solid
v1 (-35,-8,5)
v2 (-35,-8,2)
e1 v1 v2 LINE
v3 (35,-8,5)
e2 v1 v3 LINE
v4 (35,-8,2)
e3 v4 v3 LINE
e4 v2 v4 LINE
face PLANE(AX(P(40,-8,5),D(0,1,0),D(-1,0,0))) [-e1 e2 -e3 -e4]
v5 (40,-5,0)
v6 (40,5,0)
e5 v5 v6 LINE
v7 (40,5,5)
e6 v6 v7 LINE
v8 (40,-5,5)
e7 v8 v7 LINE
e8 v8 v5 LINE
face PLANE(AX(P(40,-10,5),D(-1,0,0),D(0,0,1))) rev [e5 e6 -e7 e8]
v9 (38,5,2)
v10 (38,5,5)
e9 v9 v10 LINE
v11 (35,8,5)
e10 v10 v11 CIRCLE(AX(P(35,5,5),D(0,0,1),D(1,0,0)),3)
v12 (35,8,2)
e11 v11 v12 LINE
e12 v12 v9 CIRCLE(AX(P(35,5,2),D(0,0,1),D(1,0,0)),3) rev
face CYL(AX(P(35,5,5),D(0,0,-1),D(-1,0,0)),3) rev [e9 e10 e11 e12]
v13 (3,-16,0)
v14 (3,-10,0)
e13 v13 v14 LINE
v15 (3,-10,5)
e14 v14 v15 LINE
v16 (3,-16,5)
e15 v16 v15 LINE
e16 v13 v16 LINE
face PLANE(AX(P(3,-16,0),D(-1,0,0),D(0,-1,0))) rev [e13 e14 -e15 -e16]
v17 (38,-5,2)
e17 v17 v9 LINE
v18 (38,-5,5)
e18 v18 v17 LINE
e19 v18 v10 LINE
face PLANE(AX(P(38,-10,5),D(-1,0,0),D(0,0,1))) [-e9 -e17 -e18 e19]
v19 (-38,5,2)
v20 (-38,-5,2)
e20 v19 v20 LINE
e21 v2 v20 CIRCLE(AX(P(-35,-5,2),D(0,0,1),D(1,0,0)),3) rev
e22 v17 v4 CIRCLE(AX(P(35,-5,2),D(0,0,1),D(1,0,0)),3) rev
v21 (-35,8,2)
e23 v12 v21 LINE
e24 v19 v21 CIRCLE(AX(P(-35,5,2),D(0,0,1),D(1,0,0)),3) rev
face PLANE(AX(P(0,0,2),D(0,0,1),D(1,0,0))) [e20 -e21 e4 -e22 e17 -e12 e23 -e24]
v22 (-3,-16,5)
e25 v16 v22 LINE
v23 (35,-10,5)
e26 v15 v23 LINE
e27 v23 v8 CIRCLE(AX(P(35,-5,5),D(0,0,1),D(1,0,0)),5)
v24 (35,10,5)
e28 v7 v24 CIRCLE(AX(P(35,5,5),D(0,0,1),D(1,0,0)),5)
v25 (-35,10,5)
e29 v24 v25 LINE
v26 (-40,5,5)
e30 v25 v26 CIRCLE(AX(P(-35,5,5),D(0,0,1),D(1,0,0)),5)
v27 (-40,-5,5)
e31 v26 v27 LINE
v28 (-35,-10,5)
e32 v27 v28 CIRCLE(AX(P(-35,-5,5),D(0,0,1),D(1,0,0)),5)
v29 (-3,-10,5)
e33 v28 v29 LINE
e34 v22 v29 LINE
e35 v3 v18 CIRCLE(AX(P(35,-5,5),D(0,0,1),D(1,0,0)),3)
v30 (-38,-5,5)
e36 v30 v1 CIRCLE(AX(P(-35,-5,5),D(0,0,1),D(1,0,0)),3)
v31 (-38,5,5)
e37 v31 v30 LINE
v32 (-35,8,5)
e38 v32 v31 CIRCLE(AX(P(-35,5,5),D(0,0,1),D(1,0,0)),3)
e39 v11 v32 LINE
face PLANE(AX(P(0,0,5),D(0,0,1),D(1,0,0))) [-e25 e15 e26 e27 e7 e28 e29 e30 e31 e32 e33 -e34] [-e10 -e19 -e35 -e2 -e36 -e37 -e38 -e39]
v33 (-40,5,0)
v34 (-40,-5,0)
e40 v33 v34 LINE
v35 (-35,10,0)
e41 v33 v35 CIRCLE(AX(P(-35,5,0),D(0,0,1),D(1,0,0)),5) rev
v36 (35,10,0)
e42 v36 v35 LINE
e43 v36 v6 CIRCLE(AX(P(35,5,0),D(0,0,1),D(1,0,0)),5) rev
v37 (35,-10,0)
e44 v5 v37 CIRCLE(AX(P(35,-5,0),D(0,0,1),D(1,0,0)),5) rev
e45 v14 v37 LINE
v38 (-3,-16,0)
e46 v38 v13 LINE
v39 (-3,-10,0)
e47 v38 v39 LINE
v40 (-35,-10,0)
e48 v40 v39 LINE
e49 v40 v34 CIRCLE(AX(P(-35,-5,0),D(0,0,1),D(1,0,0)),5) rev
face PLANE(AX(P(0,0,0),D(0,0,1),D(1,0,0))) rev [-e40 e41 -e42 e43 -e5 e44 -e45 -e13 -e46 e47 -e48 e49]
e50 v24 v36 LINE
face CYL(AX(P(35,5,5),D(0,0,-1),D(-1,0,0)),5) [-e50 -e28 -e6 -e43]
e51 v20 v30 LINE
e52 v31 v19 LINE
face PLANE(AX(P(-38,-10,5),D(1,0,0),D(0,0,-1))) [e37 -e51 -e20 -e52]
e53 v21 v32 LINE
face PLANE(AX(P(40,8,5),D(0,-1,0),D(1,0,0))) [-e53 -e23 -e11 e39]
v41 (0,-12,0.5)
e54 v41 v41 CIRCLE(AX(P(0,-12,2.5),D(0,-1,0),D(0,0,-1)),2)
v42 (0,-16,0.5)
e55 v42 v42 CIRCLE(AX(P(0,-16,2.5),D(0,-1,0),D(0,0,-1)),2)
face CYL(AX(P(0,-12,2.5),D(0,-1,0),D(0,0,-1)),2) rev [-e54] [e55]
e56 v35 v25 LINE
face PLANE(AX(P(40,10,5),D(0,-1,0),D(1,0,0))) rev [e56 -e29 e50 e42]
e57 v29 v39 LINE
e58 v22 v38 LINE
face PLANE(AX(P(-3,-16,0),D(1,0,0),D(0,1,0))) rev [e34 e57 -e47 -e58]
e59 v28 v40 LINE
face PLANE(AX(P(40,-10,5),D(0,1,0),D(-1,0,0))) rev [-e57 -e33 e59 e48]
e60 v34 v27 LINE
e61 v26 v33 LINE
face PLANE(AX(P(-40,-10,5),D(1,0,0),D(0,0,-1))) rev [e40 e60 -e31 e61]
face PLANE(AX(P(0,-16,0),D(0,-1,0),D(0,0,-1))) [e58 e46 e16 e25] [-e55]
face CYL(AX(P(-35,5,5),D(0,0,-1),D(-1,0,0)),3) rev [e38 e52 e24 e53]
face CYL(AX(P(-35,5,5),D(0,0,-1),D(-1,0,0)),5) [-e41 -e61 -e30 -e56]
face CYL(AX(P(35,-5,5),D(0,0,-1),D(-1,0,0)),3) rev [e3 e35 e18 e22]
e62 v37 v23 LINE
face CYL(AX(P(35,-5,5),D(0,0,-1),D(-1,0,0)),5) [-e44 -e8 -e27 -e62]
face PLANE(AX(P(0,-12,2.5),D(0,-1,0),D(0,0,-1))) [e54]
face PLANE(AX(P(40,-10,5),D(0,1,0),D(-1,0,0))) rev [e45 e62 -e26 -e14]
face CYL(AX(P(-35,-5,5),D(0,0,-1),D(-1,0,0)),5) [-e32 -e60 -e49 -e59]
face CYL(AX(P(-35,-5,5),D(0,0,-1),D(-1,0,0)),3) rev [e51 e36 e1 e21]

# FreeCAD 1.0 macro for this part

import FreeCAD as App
import Part
import Sketcher

V = App.Vector


def edges_at(feature, points):
    """Names of the edges that pass closest to the given points."""
    edges = feature.Shape.Edges
    near = lambda p: min(range(len(edges)), key=lambda i: edges[i].distToShape(Part.Vertex(*p))[0])
    return sorted({f"Edge{near(p) + 1}" for p in points})


def faces_at(feature, points):
    """Names of the faces that lie closest to the given points."""
    faces = feature.Shape.Faces
    near = lambda p: min(range(len(faces)), key=lambda i: faces[i].distToShape(Part.Vertex(*p))[0])
    return sorted({f"Face{near(p) + 1}" for p in points})


def add_polygon(sketch, points):
    """Adds a closed chain of lines whose ends are joined by coincident constraints."""
    first, n = sketch.GeometryCount, len(points)
    for a, b in zip(points, points[1:] + points[:1]):
        sketch.addGeometry(Part.LineSegment(App.Vector(*a, 0), App.Vector(*b, 0)), False)
    for i in range(n):
        sketch.addConstraint(Sketcher.Constraint("Coincident", first + i, 2, first + (i + 1) % n, 1))

doc = App.newDocument("Part")
params = doc.addObject("Spreadsheet::Sheet", "Params")
for row, (alias, value) in enumerate([
    ("sketch1_width", "80 mm"),
    ("sketch1_height", "20 mm"),
    ("pad1_length", "5 mm"),
    ("fillet_radius", "5 mm"),
    ("thickness_wall", "2 mm"),
    ("sketch2_width", "6 mm"),
    ("sketch2_height", "5 mm"),
    ("pad2_length", "6 mm"),
    ("sketch3_diameter", "4 mm"),
    ("pocket1_length", "4 mm"),
], start=1):
    params.set(f"A{row}", alias)
    params.set(f"B{row}", "=" + value)
    params.setAlias(f"B{row}", alias)

body = doc.addObject("PartDesign::Body", "Body")

# Sketch on XY plane
sketch1 = doc.addObject("Sketcher::SketchObject", "Sketch")
body.addObject(sketch1)
sketch1.AttachmentSupport = (doc.XY_Plane, [""])
sketch1.MapMode = "FlatFace"
add_polygon(sketch1, [(-40, 10), (-40, -10), (40, -10), (40, 10)])  # lines 0-3
sketch1.addConstraint(Sketcher.Constraint("Vertical", 0))
sketch1.addConstraint(Sketcher.Constraint("Horizontal", 1))
sketch1.addConstraint(Sketcher.Constraint("Vertical", 2))
sketch1.addConstraint(Sketcher.Constraint("Horizontal", 3))
sketch1.addConstraint(Sketcher.Constraint("Symmetric", 0, 2, 2, 2, -1, 1))
sketch1.addConstraint(Sketcher.Constraint("DistanceX", 1, 1, 1, 2, 80.0))
sketch1.addConstraint(Sketcher.Constraint("DistanceY", 0, 2, 0, 1, 20.0))
sketch1.setExpression("Constraints[9]", "Params.sketch1_width")
sketch1.setExpression("Constraints[10]", "Params.sketch1_height")
pad1 = doc.addObject("PartDesign::Pad", "Pad")
body.addObject(pad1)
pad1.Profile = sketch1
pad1.setExpression("Length", "Params.pad1_length")
doc.recompute()

fillet = doc.addObject("PartDesign::Fillet", "Fillet")
body.addObject(fillet)
fillet.Base = (pad1, edges_at(pad1, [
    (-40, 10, 2.5),
    (40, 10, 2.5),
    (40, -10, 2.5),
    (-40, -10, 2.5),
]))
fillet.setExpression("Radius", "Params.fillet_radius")
doc.recompute()

thickness = doc.addObject("PartDesign::Thickness", "Thickness")
body.addObject(thickness)
thickness.Base = (fillet, faces_at(fillet, [(0, 0, 5)]))
thickness.setExpression("Value", "Params.thickness_wall")
thickness.Reversed = True
thickness.Join = "Intersection"

# Sketch on XZ plane
sketch2 = doc.addObject("Sketcher::SketchObject", "Sketch001")
body.addObject(sketch2)
sketch2.AttachmentSupport = (doc.XZ_Plane, [""])
sketch2.MapMode = "FlatFace"
sketch2.AttachmentOffset = App.Placement(V(0, 0, 10), App.Rotation())
add_polygon(sketch2, [(-3, 5), (-3, 0), (3, 0), (3, 5)])  # lines 0-3
sketch2.addConstraint(Sketcher.Constraint("Vertical", 0))
sketch2.addConstraint(Sketcher.Constraint("Horizontal", 1))
sketch2.addConstraint(Sketcher.Constraint("Vertical", 2))
sketch2.addConstraint(Sketcher.Constraint("Horizontal", 3))
sketch2.addConstraint(Sketcher.Constraint("Symmetric", 0, 2, 1, 2, -1, 1))
sketch2.addConstraint(Sketcher.Constraint("DistanceX", 1, 1, 1, 2, 6.0))
sketch2.addConstraint(Sketcher.Constraint("DistanceY", 0, 2, 0, 1, 5.0))
sketch2.setExpression("Constraints[9]", "Params.sketch2_width")
sketch2.setExpression("Constraints[10]", "Params.sketch2_height")
pad2 = doc.addObject("PartDesign::Pad", "Pad001")
body.addObject(pad2)
pad2.Profile = sketch2
pad2.setExpression("Length", "Params.pad2_length")

# Sketch on XZ plane
sketch3 = doc.addObject("Sketcher::SketchObject", "Sketch002")
body.addObject(sketch3)
sketch3.AttachmentSupport = (doc.XZ_Plane, [""])
sketch3.MapMode = "FlatFace"
sketch3.AttachmentOffset = App.Placement(V(0, 0, 16), App.Rotation())
sketch3.addGeometry(Part.Circle(V(0, 2.5, 0), V(0, 0, 1), 2), False)
sketch3.addConstraint(Sketcher.Constraint("PointOnObject", 0, 3, -2))
sketch3.addConstraint(Sketcher.Constraint("Diameter", 0, 4.0))
sketch3.addConstraint(Sketcher.Constraint("DistanceY", -1, 1, 0, 3, 2.5))
sketch3.setExpression("Constraints[1]", "Params.sketch3_diameter")
pocket1 = doc.addObject("PartDesign::Pocket", "Pocket")
body.addObject(pocket1)
pocket1.Profile = sketch3
pocket1.setExpression("Length", "Params.pocket1_length")

doc.recompute()
